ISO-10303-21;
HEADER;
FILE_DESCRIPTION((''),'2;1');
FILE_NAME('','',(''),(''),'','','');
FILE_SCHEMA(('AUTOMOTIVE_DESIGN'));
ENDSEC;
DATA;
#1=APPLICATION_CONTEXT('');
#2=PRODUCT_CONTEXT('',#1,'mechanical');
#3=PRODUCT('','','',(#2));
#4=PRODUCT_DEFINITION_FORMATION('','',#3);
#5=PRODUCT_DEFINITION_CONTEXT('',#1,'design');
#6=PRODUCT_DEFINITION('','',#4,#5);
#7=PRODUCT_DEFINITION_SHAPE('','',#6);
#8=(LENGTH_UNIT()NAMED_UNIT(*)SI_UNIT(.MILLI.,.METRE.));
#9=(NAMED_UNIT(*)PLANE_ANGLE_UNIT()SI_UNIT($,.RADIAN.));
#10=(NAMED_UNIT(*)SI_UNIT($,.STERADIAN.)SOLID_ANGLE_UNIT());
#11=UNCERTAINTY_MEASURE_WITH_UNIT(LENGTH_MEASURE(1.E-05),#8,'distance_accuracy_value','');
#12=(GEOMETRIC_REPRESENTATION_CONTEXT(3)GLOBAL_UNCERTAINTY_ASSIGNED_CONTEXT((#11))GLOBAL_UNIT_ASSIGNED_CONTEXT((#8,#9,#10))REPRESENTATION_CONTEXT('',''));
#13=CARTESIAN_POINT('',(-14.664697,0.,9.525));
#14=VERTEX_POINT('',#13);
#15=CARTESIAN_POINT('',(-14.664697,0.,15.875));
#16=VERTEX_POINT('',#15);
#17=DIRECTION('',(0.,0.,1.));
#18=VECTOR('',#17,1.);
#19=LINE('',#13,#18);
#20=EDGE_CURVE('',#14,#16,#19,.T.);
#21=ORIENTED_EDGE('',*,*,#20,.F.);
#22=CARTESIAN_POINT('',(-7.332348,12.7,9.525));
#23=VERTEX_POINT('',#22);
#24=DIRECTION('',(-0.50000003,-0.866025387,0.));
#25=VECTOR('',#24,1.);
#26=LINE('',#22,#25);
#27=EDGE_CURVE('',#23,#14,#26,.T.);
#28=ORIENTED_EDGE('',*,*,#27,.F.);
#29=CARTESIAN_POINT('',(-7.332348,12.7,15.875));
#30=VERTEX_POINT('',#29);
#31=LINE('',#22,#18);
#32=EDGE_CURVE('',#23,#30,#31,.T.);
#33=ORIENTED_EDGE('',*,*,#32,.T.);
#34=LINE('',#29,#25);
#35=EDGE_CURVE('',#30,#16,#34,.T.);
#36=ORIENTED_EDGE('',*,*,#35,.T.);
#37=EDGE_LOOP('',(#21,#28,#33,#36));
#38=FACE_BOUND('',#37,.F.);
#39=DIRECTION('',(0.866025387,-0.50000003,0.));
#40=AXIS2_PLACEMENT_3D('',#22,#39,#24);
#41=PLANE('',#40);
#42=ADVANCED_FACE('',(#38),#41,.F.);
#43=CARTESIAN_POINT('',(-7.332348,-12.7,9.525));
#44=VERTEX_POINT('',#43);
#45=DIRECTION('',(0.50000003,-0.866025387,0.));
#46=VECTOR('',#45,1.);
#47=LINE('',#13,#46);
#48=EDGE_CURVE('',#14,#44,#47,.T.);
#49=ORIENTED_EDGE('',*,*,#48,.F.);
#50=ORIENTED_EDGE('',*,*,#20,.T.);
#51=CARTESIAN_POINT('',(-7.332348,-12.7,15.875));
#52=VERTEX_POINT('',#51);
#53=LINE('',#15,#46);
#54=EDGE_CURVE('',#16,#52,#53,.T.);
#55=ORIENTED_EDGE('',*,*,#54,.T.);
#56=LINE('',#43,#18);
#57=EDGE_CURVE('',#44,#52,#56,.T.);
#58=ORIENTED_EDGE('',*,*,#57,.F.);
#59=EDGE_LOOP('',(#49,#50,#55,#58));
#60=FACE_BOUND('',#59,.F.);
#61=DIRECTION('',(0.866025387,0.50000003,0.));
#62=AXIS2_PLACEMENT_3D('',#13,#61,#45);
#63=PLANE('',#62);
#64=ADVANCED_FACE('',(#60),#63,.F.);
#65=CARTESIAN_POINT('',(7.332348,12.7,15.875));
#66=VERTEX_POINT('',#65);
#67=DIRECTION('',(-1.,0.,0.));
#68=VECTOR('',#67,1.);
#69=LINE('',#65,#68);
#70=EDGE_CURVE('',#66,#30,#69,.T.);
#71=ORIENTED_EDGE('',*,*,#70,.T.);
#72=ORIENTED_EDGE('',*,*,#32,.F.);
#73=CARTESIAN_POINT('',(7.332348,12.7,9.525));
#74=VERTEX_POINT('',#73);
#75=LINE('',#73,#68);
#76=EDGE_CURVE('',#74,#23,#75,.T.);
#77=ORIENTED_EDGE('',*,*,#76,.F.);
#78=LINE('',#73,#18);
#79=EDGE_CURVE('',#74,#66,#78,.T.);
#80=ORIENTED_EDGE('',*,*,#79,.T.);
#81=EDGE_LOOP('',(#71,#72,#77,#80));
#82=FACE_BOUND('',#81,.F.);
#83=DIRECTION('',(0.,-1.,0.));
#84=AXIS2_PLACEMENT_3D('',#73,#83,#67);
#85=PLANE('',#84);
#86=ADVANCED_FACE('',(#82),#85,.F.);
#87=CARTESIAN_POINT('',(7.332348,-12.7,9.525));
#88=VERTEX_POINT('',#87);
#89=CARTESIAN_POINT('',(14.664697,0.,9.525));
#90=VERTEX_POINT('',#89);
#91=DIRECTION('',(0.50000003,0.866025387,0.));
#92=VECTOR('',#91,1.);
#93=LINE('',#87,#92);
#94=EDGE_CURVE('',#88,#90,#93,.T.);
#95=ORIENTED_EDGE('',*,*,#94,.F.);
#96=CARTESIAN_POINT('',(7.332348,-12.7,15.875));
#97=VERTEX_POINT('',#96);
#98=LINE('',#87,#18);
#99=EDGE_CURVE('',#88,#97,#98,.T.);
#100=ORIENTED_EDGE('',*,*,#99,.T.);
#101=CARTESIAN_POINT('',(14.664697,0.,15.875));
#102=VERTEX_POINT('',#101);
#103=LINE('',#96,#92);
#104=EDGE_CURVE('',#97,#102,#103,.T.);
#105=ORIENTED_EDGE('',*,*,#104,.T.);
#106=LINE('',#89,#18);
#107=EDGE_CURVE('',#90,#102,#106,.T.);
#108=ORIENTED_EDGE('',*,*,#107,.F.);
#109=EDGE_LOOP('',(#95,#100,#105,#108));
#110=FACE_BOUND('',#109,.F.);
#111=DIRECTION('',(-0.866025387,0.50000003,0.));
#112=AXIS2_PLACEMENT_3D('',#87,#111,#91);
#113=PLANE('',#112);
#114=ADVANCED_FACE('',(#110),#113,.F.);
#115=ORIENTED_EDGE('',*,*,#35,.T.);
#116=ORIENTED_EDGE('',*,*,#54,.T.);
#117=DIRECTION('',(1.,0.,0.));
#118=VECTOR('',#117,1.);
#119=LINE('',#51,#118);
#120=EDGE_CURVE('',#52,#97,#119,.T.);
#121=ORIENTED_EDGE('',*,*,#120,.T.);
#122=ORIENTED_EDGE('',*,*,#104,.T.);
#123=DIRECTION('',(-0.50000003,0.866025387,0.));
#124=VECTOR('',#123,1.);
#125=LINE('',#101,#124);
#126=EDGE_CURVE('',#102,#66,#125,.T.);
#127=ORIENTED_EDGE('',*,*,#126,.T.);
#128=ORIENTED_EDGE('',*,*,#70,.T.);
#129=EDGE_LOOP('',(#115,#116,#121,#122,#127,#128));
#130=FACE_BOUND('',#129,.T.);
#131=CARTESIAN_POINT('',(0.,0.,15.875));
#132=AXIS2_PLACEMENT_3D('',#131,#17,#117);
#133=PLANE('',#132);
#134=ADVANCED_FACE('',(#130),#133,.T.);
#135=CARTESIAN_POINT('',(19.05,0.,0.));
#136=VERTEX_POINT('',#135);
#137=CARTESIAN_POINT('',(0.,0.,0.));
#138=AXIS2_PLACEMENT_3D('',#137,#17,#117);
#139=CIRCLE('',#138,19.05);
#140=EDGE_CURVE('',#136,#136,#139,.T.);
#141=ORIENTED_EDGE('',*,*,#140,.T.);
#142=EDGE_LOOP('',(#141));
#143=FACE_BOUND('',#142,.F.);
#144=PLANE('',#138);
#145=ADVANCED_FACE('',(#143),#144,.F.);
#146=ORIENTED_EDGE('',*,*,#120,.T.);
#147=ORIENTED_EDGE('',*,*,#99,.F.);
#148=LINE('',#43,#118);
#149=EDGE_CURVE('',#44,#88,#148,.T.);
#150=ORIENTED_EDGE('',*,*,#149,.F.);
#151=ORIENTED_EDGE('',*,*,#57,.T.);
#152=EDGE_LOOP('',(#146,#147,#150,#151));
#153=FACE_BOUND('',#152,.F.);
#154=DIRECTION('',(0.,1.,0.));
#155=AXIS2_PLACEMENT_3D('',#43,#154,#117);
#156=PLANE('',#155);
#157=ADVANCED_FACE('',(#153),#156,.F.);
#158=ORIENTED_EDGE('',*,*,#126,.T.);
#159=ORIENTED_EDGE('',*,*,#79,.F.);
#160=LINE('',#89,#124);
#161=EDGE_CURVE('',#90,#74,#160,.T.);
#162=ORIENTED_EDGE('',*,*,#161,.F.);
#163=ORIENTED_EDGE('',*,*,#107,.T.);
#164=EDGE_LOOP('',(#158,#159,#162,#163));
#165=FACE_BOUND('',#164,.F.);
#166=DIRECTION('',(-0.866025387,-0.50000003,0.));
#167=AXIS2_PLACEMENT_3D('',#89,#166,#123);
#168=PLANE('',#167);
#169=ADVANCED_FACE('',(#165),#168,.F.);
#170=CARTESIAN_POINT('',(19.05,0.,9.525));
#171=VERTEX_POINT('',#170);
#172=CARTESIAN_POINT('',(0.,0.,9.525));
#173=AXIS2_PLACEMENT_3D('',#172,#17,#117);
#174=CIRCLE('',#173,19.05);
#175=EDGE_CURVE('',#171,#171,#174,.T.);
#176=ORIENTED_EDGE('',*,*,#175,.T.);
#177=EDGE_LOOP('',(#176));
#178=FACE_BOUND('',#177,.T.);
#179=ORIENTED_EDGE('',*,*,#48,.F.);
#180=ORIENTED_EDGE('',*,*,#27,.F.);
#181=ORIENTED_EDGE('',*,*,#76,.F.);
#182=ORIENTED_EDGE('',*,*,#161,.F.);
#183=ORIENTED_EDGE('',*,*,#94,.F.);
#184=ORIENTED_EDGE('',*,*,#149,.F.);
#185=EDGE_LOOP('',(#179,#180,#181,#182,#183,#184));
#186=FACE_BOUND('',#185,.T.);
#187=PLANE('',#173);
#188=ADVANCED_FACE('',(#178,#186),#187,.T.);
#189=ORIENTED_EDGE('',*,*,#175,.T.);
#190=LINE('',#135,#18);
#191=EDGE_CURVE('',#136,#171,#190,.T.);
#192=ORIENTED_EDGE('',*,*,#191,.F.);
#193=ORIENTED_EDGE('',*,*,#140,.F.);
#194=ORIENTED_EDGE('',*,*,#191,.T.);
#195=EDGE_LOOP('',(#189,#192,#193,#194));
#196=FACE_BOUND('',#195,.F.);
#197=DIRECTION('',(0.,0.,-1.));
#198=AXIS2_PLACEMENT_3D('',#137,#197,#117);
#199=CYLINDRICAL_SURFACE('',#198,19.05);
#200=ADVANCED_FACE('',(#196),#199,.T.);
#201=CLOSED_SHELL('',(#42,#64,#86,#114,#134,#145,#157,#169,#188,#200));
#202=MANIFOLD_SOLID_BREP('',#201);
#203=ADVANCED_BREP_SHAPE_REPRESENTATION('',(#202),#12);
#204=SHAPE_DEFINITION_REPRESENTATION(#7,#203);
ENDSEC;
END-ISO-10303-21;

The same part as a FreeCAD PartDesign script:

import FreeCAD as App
import Part
import Sketcher
from FreeCAD import Vector
Q = App.Units.Quantity

doc = App.newDocument("Part")
params = doc.addObject("Spreadsheet::Sheet", "Params")
for row, (alias, value) in enumerate([
    ("sketch1_diameter", "1.5 in"),
    ("pad1_length", "0.375 in"),
    ("pad2_length", "0.25 in"),
], start=1):
    params.set(f"A{row}", alias)
    params.set(f"B{row}", "=" + value)
    params.setAlias(f"B{row}", alias)

body = doc.addObject("PartDesign::Body", "Body")

# Sketch on XY plane
sketch1 = body.newObject("Sketcher::SketchObject", "Sketch")
sketch1.AttachmentSupport = (doc.getObject("XY_Plane"), [""])
sketch1.MapMode = "FlatFace"
sketch1.addGeometry(Part.Circle(Vector(0, 0, 0), Vector(0, 0, 1), 19), False)
sketch1.addConstraint(Sketcher.Constraint("Coincident", 0, 3, -1, 1))
sketch1.addConstraint(Sketcher.Constraint("Diameter", 0, Q("1.5 in")))
sketch1.setExpression("Constraints[1]", "Params.sketch1_diameter")
pad1 = body.newObject("PartDesign::Pad", "Pad")
pad1.Profile = sketch1
pad1.setExpression("Length", "Params.pad1_length")

# Sketch on XY plane
sketch2 = body.newObject("Sketcher::SketchObject", "Sketch001")
sketch2.AttachmentSupport = (doc.getObject("XY_Plane"), [""])
sketch2.MapMode = "FlatFace"
sketch2.AttachmentOffset = App.Placement(Vector(0, 0, 0.375 * 25.4), App.Rotation())
sketch2.addGeometry(Part.LineSegment(Vector(-7, -13, 0), Vector(7, -13, 0)), False)
sketch2.addGeometry(Part.LineSegment(Vector(7, -13, 0), Vector(15, 0, 0)), False)
sketch2.addGeometry(Part.LineSegment(Vector(15, 0, 0), Vector(7, 13, 0)), False)
sketch2.addGeometry(Part.LineSegment(Vector(7, 13, 0), Vector(-7, 13, 0)), False)
sketch2.addGeometry(Part.LineSegment(Vector(-7, 13, 0), Vector(-15, 0, 0)), False)
sketch2.addGeometry(Part.LineSegment(Vector(-15, 0, 0), Vector(-7, -13, 0)), False)
sketch2.addConstraint(Sketcher.Constraint("Coincident", 0, 2, 1, 1))
sketch2.addConstraint(Sketcher.Constraint("Coincident", 1, 2, 2, 1))
sketch2.addConstraint(Sketcher.Constraint("Coincident", 2, 2, 3, 1))
sketch2.addConstraint(Sketcher.Constraint("Coincident", 3, 2, 4, 1))
sketch2.addConstraint(Sketcher.Constraint("Coincident", 4, 2, 5, 1))
sketch2.addConstraint(Sketcher.Constraint("Coincident", 5, 2, 0, 1))
sketch2.addConstraint(Sketcher.Constraint("Horizontal", 0))
sketch2.addConstraint(Sketcher.Constraint("Horizontal", 3))
sketch2.addConstraint(Sketcher.Constraint("Symmetric", 0, 2, 3, 2, -1, 1))
sketch2.addConstraint(Sketcher.Constraint("Symmetric", 1, 2, 4, 2, -1, 1))
sketch2.addConstraint(Sketcher.Constraint("PointOnObject", 1, 2, -1))
sketch2.addConstraint(Sketcher.Constraint("Parallel", 2, 5))
sketch2.addConstraint(Sketcher.Constraint("Vertical", 0, 2, 2, 2))
sketch2.addConstraint(Sketcher.Constraint("Angle", 1, Q("59.999998 deg")))
sketch2.addConstraint(Sketcher.Constraint("DistanceY", 0, 2, 2, 2, Q("1 in")))
sketch2.addConstraint(Sketcher.Constraint("DistanceX", 0, 1, 0, 2, 14.664696))
pad2 = body.newObject("PartDesign::Pad", "Pad001")
pad2.Profile = sketch2
pad2.setExpression("Length", "Params.pad2_length")

doc.recompute()
